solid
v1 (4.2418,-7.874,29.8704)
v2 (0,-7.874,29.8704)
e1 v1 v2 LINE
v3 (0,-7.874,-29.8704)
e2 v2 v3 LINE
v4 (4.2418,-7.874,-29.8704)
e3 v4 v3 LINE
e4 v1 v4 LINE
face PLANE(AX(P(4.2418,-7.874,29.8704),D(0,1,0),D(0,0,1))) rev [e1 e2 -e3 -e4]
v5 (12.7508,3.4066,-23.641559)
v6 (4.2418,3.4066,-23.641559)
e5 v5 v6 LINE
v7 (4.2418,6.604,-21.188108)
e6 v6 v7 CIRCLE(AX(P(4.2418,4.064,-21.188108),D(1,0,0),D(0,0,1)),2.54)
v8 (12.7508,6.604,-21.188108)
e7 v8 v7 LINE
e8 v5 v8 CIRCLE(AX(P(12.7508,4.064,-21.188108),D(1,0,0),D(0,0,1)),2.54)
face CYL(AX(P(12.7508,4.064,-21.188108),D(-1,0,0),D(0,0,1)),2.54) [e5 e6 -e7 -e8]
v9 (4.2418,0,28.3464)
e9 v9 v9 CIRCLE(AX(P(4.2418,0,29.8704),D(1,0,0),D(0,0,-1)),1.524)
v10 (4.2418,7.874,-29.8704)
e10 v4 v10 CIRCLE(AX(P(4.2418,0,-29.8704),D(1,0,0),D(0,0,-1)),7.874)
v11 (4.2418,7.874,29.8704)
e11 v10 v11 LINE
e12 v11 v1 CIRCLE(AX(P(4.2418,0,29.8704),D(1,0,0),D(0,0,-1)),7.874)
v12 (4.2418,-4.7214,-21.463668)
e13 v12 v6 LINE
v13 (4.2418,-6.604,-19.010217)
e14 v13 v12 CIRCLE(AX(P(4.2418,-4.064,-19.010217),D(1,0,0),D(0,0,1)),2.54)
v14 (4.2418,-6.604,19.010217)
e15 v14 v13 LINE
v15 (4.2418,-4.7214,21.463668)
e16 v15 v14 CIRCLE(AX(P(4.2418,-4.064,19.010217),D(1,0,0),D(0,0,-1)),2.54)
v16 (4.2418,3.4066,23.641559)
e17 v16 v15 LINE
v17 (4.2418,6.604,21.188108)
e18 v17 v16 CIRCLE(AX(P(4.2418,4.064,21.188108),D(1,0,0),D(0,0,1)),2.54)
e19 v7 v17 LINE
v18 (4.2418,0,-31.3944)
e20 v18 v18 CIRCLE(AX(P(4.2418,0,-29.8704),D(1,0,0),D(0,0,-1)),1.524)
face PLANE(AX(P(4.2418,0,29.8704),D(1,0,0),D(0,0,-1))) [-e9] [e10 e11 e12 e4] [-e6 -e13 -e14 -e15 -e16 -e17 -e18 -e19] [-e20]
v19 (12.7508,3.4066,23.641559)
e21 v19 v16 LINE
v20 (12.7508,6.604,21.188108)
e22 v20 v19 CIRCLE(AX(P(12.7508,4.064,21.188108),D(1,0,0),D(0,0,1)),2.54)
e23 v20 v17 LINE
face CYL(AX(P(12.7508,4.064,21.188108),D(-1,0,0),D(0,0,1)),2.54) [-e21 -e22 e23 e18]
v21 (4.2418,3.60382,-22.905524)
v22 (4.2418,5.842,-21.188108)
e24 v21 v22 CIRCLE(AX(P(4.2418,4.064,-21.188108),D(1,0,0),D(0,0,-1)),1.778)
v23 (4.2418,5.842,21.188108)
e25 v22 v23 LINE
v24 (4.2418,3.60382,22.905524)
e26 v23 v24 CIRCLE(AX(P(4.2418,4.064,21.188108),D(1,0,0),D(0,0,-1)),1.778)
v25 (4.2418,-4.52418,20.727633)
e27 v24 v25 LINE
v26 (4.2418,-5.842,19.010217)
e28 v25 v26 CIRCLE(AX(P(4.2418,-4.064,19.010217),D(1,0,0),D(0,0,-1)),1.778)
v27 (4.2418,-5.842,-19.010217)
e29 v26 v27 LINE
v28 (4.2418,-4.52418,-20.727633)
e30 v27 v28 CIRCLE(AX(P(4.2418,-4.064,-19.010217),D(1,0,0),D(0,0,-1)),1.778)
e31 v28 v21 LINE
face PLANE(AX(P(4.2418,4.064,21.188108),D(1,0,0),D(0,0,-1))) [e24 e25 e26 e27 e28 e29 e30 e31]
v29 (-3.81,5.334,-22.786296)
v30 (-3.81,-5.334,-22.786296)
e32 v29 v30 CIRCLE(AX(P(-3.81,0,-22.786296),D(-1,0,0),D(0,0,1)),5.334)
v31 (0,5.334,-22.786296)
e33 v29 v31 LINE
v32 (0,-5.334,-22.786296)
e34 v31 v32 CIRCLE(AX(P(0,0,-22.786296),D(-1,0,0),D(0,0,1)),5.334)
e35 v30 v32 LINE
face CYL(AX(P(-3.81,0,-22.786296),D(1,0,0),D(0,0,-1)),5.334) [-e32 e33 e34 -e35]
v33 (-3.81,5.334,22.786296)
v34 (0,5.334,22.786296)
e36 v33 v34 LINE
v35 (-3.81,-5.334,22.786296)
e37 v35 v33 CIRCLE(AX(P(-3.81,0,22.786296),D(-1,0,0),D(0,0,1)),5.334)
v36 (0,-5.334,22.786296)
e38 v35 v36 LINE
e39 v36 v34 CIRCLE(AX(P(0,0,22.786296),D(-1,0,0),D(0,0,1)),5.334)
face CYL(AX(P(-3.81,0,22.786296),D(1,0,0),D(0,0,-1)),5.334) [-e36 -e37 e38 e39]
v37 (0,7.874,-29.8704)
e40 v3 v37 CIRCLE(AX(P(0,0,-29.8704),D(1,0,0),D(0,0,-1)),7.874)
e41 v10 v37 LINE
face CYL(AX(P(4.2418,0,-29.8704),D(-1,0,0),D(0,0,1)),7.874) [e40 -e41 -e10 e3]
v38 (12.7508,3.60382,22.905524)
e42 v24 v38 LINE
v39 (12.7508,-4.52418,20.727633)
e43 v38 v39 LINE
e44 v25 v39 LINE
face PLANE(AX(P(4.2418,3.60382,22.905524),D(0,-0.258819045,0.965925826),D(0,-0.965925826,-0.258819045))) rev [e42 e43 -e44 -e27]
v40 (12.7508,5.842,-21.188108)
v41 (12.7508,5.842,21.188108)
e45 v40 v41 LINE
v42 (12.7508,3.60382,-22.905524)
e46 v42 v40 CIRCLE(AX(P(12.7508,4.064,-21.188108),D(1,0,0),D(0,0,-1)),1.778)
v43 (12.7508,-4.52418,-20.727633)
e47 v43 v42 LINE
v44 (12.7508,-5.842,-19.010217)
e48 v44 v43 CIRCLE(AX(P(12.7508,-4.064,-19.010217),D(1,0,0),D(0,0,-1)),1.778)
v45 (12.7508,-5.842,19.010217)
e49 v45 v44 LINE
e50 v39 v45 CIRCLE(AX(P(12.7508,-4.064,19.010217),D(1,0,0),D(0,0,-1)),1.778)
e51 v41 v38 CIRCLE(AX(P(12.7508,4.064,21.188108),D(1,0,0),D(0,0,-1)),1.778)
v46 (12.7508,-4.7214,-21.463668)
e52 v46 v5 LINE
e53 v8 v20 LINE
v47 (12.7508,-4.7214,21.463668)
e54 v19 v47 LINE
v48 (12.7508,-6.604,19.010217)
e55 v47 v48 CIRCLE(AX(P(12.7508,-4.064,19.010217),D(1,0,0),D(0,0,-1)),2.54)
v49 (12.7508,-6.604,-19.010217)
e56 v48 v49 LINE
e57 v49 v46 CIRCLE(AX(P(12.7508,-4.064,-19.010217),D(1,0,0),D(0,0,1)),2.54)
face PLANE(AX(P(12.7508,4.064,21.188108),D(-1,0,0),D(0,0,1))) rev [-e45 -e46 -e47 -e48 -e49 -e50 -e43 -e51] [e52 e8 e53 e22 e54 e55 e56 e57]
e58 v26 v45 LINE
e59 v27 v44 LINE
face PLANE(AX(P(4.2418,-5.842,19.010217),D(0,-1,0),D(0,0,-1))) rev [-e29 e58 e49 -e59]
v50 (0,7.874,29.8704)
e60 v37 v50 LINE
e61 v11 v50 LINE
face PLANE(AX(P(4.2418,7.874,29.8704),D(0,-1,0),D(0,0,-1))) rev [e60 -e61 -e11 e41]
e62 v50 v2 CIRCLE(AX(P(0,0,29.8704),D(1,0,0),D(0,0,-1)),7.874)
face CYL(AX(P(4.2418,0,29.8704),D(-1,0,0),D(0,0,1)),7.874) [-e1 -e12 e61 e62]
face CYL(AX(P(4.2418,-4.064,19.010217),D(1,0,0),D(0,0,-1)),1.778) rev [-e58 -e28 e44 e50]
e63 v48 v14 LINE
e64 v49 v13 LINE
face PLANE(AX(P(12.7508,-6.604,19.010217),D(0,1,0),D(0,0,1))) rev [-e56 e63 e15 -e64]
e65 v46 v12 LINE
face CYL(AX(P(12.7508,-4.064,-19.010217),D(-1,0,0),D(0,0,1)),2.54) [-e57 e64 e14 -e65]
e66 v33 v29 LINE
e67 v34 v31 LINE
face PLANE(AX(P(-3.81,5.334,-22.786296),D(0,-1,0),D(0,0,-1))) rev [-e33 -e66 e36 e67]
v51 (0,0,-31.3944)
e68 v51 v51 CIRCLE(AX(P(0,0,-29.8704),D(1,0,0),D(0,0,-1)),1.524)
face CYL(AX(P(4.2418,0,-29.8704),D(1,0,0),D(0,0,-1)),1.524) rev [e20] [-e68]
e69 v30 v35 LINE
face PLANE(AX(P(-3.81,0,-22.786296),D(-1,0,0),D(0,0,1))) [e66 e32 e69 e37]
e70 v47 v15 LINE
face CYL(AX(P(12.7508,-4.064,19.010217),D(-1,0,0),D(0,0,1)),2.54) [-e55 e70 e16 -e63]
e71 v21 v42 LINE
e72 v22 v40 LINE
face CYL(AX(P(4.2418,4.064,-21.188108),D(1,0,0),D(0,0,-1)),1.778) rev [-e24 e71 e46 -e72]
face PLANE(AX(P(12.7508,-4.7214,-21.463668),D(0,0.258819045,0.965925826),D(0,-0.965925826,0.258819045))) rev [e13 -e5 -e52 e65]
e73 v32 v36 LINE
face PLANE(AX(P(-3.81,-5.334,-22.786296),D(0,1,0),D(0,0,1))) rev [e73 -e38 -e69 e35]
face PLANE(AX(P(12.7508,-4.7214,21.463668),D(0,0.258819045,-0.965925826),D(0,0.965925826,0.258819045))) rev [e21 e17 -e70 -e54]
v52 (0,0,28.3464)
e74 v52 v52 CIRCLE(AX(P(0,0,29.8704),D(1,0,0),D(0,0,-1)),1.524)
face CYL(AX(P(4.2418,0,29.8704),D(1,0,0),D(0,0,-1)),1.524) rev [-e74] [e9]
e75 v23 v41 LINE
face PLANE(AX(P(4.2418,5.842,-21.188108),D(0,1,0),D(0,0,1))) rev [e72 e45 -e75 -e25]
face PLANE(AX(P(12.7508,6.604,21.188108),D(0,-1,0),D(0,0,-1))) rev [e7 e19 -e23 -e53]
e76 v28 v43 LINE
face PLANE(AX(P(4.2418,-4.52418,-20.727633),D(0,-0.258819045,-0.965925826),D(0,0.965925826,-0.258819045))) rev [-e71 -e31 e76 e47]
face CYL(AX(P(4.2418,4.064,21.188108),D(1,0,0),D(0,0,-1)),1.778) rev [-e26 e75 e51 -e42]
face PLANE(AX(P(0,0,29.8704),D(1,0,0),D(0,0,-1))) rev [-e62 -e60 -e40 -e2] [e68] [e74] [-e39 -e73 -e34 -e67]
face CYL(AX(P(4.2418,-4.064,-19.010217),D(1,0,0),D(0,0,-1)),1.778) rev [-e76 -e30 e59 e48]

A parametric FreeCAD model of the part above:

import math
import FreeCAD as App
import Part
import Sketcher

V = App.Vector
Q = App.Units.Quantity

doc = App.newDocument("Part")
body = doc.addObject("PartDesign::Body", "Body")

sketch1 = body.newObject("Sketcher::SketchObject", "Sketch")
sketch1.AttachmentSupport = (doc.getObject("YZ_Plane"), [""])
sketch1.MapMode = "FlatFace"
sketch1.addGeometry([
    Part.LineSegment(V(8, -30, 0), V(8, 30, 0)),
    Part.ArcOfCircle(Part.Circle(V(0, 30, 0), V(0, 0, 1), 8), math.radians(0), math.radians(180)),
    Part.LineSegment(V(-8, 30, 0), V(-8, -30, 0)),
    Part.ArcOfCircle(Part.Circle(V(0, -30, 0), V(0, 0, 1), 8), math.radians(180), math.radians(360)),
], False)
sketch1.addConstraint([
    Sketcher.Constraint("Tangent", 0, 2, 1, 1),
    Sketcher.Constraint("Tangent", 1, 2, 2, 1),
    Sketcher.Constraint("Tangent", 2, 2, 3, 1),
    Sketcher.Constraint("Tangent", 3, 2, 0, 1),
    Sketcher.Constraint("Vertical", 0),
    Sketcher.Constraint("Vertical", 2),
    Sketcher.Constraint("Symmetric", 1, 3, 3, 3, -1, 1),
    Sketcher.Constraint("Radius", 1, Q("0.31 in")),
    Sketcher.Constraint("DistanceY", 0, 1, 0, 2, Q("2.352 in")),
])
pad1 = body.newObject("PartDesign::Pad", "Pad")
pad1.Profile = sketch1
pad1.Length = Q("0.167 in")

sketch2 = body.newObject("Sketcher::SketchObject", "Sketch001")
sketch2.AttachmentSupport = (doc.getObject("YZ_Plane"), [""])
sketch2.MapMode = "FlatFace"
sketch2.AttachmentOffset = App.Placement(V(0, 0, 0.167 * 25.4), App.Rotation())
sketch2.addGeometry([
    Part.LineSegment(V(6.6, -21.2, 0), V(6.6, 21.2, 0)),
    Part.ArcOfCircle(Part.Circle(V(4.1, 21.2, 0), V(0, 0, 1), 2.5), math.radians(0), math.radians(105)),
    Part.LineSegment(V(3.4, 23.6, 0), V(-4.7, 21.5, 0)),
    Part.ArcOfCircle(Part.Circle(V(-4.1, 19, 0), V(0, 0, 1), 2.5), math.radians(105), math.radians(180)),
    Part.LineSegment(V(-6.6, 19, 0), V(-6.6, -19, 0)),
    Part.ArcOfCircle(Part.Circle(V(-4.1, -19, 0), V(0, 0, 1), 2.5), math.radians(180), math.radians(255)),
    Part.LineSegment(V(-4.7, -21.5, 0), V(3.4, -23.6, 0)),
    Part.ArcOfCircle(Part.Circle(V(4.1, -21.2, 0), V(0, 0, 1), 2.5), math.radians(-105), math.radians(0)),
], False)
sketch2.addConstraint([
    Sketcher.Constraint("Tangent", 0, 2, 1, 1),
    Sketcher.Constraint("Tangent", 1, 2, 2, 1),
    Sketcher.Constraint("Tangent", 2, 2, 3, 1),
    Sketcher.Constraint("Tangent", 3, 2, 4, 1),
    Sketcher.Constraint("Tangent", 4, 2, 5, 1),
    Sketcher.Constraint("Tangent", 5, 2, 6, 1),
    Sketcher.Constraint("Tangent", 6, 2, 7, 1),
    Sketcher.Constraint("Tangent", 7, 2, 0, 1),
    Sketcher.Constraint("Vertical", 0),
    Sketcher.Constraint("Vertical", 4),
    Sketcher.Constraint("Equal", 1, 3),
    Sketcher.Constraint("Equal", 3, 5),
    Sketcher.Constraint("Equal", 5, 7),
    Sketcher.Constraint("Symmetric", 2, 2, 5, 2, -1),
    Sketcher.Constraint("Radius", 1, Q("0.1 in")),
    Sketcher.Constraint("Angle", 2, Q("-165 deg")),
    Sketcher.Constraint("DistanceX", -1, 1, 1, 3, Q("0.16 in")),
    Sketcher.Constraint("DistanceX", 3, 3, -1, 1, Q("0.16 in")),
    Sketcher.Constraint("DistanceY", 0, 1, 0, 2, Q("42.376215 mm")),
])
pad2 = body.newObject("PartDesign::Pad", "Pad001")
pad2.Profile = sketch2
pad2.Length = Q("0.335 in")

sketch3 = body.newObject("Sketcher::SketchObject", "Sketch002")
sketch3.AttachmentSupport = (doc.getObject("YZ_Plane"), [""])
sketch3.MapMode = "FlatFace"
sketch3.AttachmentOffset = App.Placement(V(0, 0, 0.502 * 25.4), App.Rotation())
sketch3.addGeometry([
    Part.LineSegment(V(3.6, 22.9, 0), V(-4.5, 20.7, 0)),
    Part.ArcOfCircle(Part.Circle(V(-4.1, 19, 0), V(0, 0, 1), 1.8), math.radians(105), math.radians(180)),
    Part.LineSegment(V(-5.8, 19, 0), V(-5.8, -19, 0)),
    Part.ArcOfCircle(Part.Circle(V(-4.1, -19, 0), V(0, 0, 1), 1.8), math.radians(180), math.radians(255)),
    Part.LineSegment(V(-4.5, -20.7, 0), V(3.6, -22.9, 0)),
    Part.ArcOfCircle(Part.Circle(V(4.1, -21.2, 0), V(0, 0, 1), 1.8), math.radians(-105), math.radians(0)),
    Part.LineSegment(V(5.8, -21.2, 0), V(5.8, 21.2, 0)),
    Part.ArcOfCircle(Part.Circle(V(4.1, 21.2, 0), V(0, 0, 1), 1.8), math.radians(0), math.radians(105)),
], False)
sketch3.addConstraint([
    Sketcher.Constraint("Tangent", 0, 2, 1, 1),
    Sketcher.Constraint("Tangent", 1, 2, 2, 1),
    Sketcher.Constraint("Tangent", 2, 2, 3, 1),
    Sketcher.Constraint("Tangent", 3, 2, 4, 1),
    Sketcher.Constraint("Tangent", 4, 2, 5, 1),
    Sketcher.Constraint("Tangent", 5, 2, 6, 1),
    Sketcher.Constraint("Tangent", 6, 2, 7, 1),
    Sketcher.Constraint("Tangent", 7, 2, 0, 1),
    Sketcher.Constraint("Vertical", 2),
    Sketcher.Constraint("Vertical", 6),
    Sketcher.Constraint("Equal", 1, 3),
    Sketcher.Constraint("Equal", 3, 5),
    Sketcher.Constraint("Equal", 5, 7),
    Sketcher.Constraint("Symmetric", 0, 2, 3, 2, -1),
    Sketcher.Constraint("Radius", 1, Q("0.07 in")),
    Sketcher.Constraint("Angle", 0, Q("-165 deg")),
    Sketcher.Constraint("DistanceX", 1, 3, -1, 1, Q("0.16 in")),
    Sketcher.Constraint("DistanceX", -1, 1, 5, 3, Q("0.16 in")),
    Sketcher.Constraint("DistanceY", 2, 2, 2, 1, Q("38.020433 mm")),
])
pocket1 = body.newObject("PartDesign::Pocket", "Pocket")
pocket1.Profile = sketch3
pocket1.Length = Q("0.335 in")

sketch4 = body.newObject("Sketcher::SketchObject", "Sketch003")
sketch4.AttachmentSupport = (doc.getObject("YZ_Plane"), [""])
sketch4.MapMode = "FlatFace"
sketch4.AttachmentOffset = App.Placement(V(0, 0, 0.167 * 25.4), App.Rotation())
sketch4.addGeometry([
    Part.Circle(V(0, 29.9, 0), V(0, 0, 1), 1.5),
    Part.Circle(V(0, -29.9, 0), V(0, 0, 1), 1.5),
], False)
sketch4.addConstraint([
    Sketcher.Constraint("Equal", 0, 1),
    Sketcher.Constraint("Symmetric", 0, 3, 1, 3, -1, 1),
    Sketcher.Constraint("PointOnObject", 0, 3, -2),
    Sketcher.Constraint("Diameter", 0, Q("0.12 in")),
    Sketcher.Constraint("DistanceY", -1, 1, 0, 3, Q("1.176 in")),
])
doc.recompute()
hole = body.newObject("PartDesign::Hole", "Hole")
hole.Profile = sketch4
hole.ThreadType = "None"
hole.Diameter = Q("0.12 in")
hole.DepthType = "ThroughAll"

sketch5 = body.newObject("Sketcher::SketchObject", "Sketch004")
sketch5.AttachmentSupport = (doc.getObject("YZ_Plane"), [""])
sketch5.MapMode = "FlatFace"
sketch5.addGeometry([
    Part.LineSegment(V(5, 23, 0), V(5, -23, 0)),
    Part.ArcOfCircle(Part.Circle(V(0, -23, 0), V(0, 0, 1), 5), math.radians(180), math.radians(360)),
    Part.LineSegment(V(-5, -23, 0), V(-5, 23, 0)),
    Part.ArcOfCircle(Part.Circle(V(0, 23, 0), V(0, 0, 1), 5), math.radians(0), math.radians(180)),
], False)
sketch5.addConstraint([
    Sketcher.Constraint("Tangent", 0, 2, 1, 2),
    Sketcher.Constraint("Tangent", 1, 1, 2, 1),
    Sketcher.Constraint("Tangent", 2, 2, 3, 2),
    Sketcher.Constraint("Tangent", 3, 1, 0, 1),
    Sketcher.Constraint("Vertical", 0),
    Sketcher.Constraint("Vertical", 2),
    Sketcher.Constraint("Symmetric", 1, 3, 3, 3, -1, 1),
    Sketcher.Constraint("Radius", 1, Q("0.21 in")),
    Sketcher.Constraint("DistanceY", 0, 2, 0, 1, Q("45.572592 mm")),
])
pad3 = body.newObject("PartDesign::Pad", "Pad002")
pad3.Profile = sketch5
pad3.Length = Q("0.15 in")
pad3.Reversed = True

doc.recompute()
